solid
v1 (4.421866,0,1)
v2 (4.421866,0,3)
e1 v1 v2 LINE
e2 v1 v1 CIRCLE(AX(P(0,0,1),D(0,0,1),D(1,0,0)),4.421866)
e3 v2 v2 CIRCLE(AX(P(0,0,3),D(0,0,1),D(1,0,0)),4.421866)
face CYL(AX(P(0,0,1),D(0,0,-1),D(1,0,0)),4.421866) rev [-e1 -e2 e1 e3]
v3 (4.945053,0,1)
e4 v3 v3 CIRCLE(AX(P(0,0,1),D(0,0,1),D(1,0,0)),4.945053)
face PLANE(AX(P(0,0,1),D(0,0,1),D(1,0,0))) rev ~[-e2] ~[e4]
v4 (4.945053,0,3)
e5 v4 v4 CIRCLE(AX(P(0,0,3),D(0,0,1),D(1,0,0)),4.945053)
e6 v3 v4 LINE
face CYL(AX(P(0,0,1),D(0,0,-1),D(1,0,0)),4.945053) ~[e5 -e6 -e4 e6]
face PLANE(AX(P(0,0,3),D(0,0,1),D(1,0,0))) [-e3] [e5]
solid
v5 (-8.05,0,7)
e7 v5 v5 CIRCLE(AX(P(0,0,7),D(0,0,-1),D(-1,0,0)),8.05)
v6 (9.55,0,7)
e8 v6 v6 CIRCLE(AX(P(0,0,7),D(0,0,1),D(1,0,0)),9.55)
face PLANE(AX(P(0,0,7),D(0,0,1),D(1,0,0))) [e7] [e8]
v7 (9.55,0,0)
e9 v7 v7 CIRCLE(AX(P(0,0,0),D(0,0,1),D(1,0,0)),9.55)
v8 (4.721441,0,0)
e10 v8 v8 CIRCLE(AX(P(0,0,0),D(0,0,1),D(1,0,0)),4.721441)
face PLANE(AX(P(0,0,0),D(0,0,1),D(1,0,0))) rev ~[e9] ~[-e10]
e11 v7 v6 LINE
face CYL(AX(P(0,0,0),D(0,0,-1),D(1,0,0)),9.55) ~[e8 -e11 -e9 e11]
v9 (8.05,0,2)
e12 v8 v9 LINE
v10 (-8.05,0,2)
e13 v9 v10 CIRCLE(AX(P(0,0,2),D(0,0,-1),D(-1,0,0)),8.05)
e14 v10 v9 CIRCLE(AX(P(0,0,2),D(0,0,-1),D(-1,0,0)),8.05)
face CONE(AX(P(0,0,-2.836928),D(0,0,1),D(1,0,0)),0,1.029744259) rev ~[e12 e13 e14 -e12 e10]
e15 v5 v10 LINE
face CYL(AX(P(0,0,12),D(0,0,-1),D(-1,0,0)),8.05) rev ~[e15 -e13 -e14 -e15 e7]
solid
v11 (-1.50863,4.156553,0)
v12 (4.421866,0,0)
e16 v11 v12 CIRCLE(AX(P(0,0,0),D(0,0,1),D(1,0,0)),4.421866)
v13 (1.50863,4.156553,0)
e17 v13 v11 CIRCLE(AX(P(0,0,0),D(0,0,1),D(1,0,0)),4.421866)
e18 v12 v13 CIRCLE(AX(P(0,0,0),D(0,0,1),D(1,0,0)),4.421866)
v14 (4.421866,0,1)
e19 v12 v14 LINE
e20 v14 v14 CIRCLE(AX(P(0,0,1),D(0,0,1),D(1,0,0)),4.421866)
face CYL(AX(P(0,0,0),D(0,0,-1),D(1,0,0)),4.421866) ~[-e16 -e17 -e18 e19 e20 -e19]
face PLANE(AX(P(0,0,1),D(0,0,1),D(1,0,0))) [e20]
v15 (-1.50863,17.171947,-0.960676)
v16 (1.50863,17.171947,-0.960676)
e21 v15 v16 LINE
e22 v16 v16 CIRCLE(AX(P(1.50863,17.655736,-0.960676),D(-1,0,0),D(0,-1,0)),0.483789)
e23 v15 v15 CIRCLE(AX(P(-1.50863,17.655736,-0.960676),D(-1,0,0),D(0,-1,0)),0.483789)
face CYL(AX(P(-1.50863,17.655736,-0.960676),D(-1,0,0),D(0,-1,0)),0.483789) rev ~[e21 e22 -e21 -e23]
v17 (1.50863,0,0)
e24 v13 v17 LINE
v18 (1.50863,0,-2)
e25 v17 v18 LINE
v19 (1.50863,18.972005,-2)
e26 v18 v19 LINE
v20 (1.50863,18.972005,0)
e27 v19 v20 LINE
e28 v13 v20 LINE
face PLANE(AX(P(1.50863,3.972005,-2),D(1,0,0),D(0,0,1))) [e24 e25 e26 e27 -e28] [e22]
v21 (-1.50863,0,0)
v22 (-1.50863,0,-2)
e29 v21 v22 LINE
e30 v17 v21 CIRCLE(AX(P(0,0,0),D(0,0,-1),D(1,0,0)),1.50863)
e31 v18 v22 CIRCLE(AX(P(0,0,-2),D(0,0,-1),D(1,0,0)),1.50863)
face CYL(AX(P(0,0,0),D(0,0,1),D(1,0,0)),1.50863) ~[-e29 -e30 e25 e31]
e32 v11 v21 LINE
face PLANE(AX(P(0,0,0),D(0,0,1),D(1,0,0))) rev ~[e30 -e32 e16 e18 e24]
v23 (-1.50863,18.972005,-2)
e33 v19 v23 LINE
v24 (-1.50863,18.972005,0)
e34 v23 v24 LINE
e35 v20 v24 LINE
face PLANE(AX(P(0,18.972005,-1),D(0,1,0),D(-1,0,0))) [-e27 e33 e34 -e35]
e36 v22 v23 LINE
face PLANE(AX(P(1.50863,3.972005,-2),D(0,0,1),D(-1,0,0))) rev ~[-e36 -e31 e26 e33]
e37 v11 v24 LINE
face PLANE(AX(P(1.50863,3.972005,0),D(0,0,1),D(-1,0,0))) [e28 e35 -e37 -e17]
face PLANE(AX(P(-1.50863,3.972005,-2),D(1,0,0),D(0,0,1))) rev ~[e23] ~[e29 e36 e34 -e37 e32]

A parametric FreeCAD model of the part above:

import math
import FreeCAD as App
import Part
import Sketcher

doc = App.newDocument("Part")
params = doc.addObject("Spreadsheet::Sheet", "Params")
for row, (alias, value) in enumerate([
    ("sketch1_diameter", "19.1 mm"),
    ("pad1_length", "7 mm"),
    ("sketch2_diameter", "16.1 mm"),
    ("hole_diameter", "16.1 mm"),
    ("hole_depth", "5 mm"),
    ("pad2_length", "1 mm"),
    ("pad3_length", "2 mm"),
    ("pad4_length", "2 mm"),
    ("sketch6_height", "2 mm"),
    ("pad5_length", "15 mm"),
    ("pocket1_length", "25 mm"),
], start=1):
    params.set(f"A{row}", alias)
    params.set(f"B{row}", "=" + value)
    params.setAlias(f"B{row}", alias)

body = doc.addObject("PartDesign::Body", "Body")

sketch1 = body.newObject("Sketcher::SketchObject", "Sketch")
sketch1.AttachmentSupport = (doc.getObject("XY_Plane"), [""])
sketch1.MapMode = "FlatFace"
sketch1.addGeometry(Part.Circle(App.Vector(0, 0, 0), App.Vector(0, 0, 1), 10), False)
sketch1.addConstraint([
    Sketcher.Constraint("Coincident", 0, 3, -1, 1),
    Sketcher.Constraint("Diameter", 0, 19.1),
])
sketch1.setExpression("Constraints[1]", "Params.sketch1_diameter")
pad1 = body.newObject("PartDesign::Pad", "Pad")
pad1.Profile = sketch1
pad1.setExpression("Length", "Params.pad1_length")

sketch2 = body.newObject("Sketcher::SketchObject", "Sketch001")
sketch2.AttachmentSupport = (doc.getObject("XY_Plane"), [""])
sketch2.MapMode = "FlatFace"
sketch2.AttachmentOffset = App.Placement(App.Vector(0, 0, 7), App.Rotation())
sketch2.addGeometry(Part.Circle(App.Vector(0, 0, 0), App.Vector(0, 0, 1), 8), False)
sketch2.addConstraint([
    Sketcher.Constraint("Coincident", 0, 3, -1, 1),
    Sketcher.Constraint("Diameter", 0, 16.1),
])
sketch2.setExpression("Constraints[1]", "Params.sketch2_diameter")
doc.recompute()
hole = body.newObject("PartDesign::Hole", "Hole")
hole.Profile = sketch2
hole.ThreadType = "None"
hole.setExpression("Diameter", "Params.hole_diameter")
hole.DepthType = "Dimension"
hole.setExpression("Depth", "Params.hole_depth")
hole.DrillPoint = "Angled"
hole.DrillPointAngle = 118
body2 = doc.addObject("PartDesign::Body", "Body001")

sketch3 = body2.newObject("Sketcher::SketchObject", "Sketch002")
sketch3.AttachmentSupport = (doc.getObject("XY_Plane001"), [""])
sketch3.MapMode = "FlatFace"
sketch3.addGeometry(Part.Circle(App.Vector(0, 0, 0), App.Vector(0, 0, 1), 4.4), False)
sketch3.addConstraint([
    Sketcher.Constraint("Coincident", 0, 3, -1, 1),
    Sketcher.Constraint("Diameter", 0, 8.843733),
])
pad2 = body2.newObject("PartDesign::Pad", "Pad001")
pad2.Profile = sketch3
pad2.setExpression("Length", "Params.pad2_length")

sketch4 = body2.newObject("Sketcher::SketchObject", "Sketch003")
sketch4.AttachmentSupport = (doc.getObject("XY_Plane001"), [""])
sketch4.MapMode = "FlatFace"
sketch4.addGeometry([
    Part.ArcOfCircle(Part.Circle(App.Vector(0, 0, 0), App.Vector(0, 0, 1), 1.5), math.radians(180), math.radians(360)),
    Part.LineSegment(App.Vector(-1.5, 0, 0), App.Vector(-1.5, 4, 0)),
    Part.LineSegment(App.Vector(-1.5, 4, 0), App.Vector(1.5, 4, 0)),
    Part.LineSegment(App.Vector(1.5, 4, 0), App.Vector(1.5, 0, 0)),
], False)
sketch4.addConstraint([
    Sketcher.Constraint("Tangent", 0, 1, 1, 1),
    Sketcher.Constraint("Coincident", 1, 2, 2, 1),
    Sketcher.Constraint("Coincident", 2, 2, 3, 1),
    Sketcher.Constraint("Tangent", 3, 2, 0, 2),
    Sketcher.Constraint("Vertical", 1),
    Sketcher.Constraint("Horizontal", 2),
    Sketcher.Constraint("Vertical", 3),
    Sketcher.Constraint("Coincident", 0, 3, -1, 1),
    Sketcher.Constraint("Radius", 0, 1.50863),
    Sketcher.Constraint("DistanceY", 1, 1, 1, 2, 3.972005),
])
pad3 = body2.newObject("PartDesign::Pad", "Pad002")
pad3.Profile = sketch4
pad3.setExpression("Length", "Params.pad3_length")
pad3.Reversed = True
body3 = doc.addObject("PartDesign::Body", "Body002")

sketch5 = body3.newObject("Sketcher::SketchObject", "Sketch004")
sketch5.AttachmentSupport = (doc.getObject("XY_Plane002"), [""])
sketch5.MapMode = "FlatFace"
sketch5.AttachmentOffset = App.Placement(App.Vector(0, 0, 1), App.Rotation())
sketch5.addGeometry([
    Part.Circle(App.Vector(0, 0, 0), App.Vector(0, 0, 1), 4.9),
    Part.Circle(App.Vector(0, 0, 0), App.Vector(0, 0, 1), 4.4),
], False)
sketch5.addConstraint([
    Sketcher.Constraint("Coincident", 0, 3, -1, 1),
    Sketcher.Constraint("Coincident", 1, 3, -1, 1),
    Sketcher.Constraint("Diameter", 0, 9.890107),
    Sketcher.Constraint("Diameter", 1, 8.843733),
])
pad4 = body3.newObject("PartDesign::Pad", "Pad003")
pad4.Profile = sketch5
pad4.setExpression("Length", "Params.pad4_length")
body4 = doc.addObject("PartDesign::Body", "Body003")

sketch6 = body4.newObject("Sketcher::SketchObject", "Sketch005")
sketch6.AttachmentSupport = (doc.getObject("XZ_Plane003"), [""])
sketch6.MapMode = "FlatFace"
sketch6.AttachmentOffset = App.Placement(App.Vector(0, 0, -3.972005), App.Rotation())
sketch6.addGeometry([
    Part.LineSegment(App.Vector(1.5, 0, 0), App.Vector(1.5, -2, 0)),
    Part.LineSegment(App.Vector(1.5, -2, 0), App.Vector(-1.5, -2, 0)),
    Part.LineSegment(App.Vector(-1.5, -2, 0), App.Vector(-1.5, 0, 0)),
    Part.LineSegment(App.Vector(-1.5, 0, 0), App.Vector(1.5, 0, 0)),
], False)
sketch6.addConstraint([
    Sketcher.Constraint("Coincident", 0, 2, 1, 1),
    Sketcher.Constraint("Coincident", 1, 2, 2, 1),
    Sketcher.Constraint("Coincident", 2, 2, 3, 1),
    Sketcher.Constraint("Coincident", 3, 2, 0, 1),
    Sketcher.Constraint("Vertical", 0),
    Sketcher.Constraint("Horizontal", 1),
    Sketcher.Constraint("Vertical", 2),
    Sketcher.Constraint("Horizontal", 3),
    Sketcher.Constraint("Symmetric", 2, 2, 3, 2, -1, 1),
    Sketcher.Constraint("DistanceY", 0, 2, 0, 1, 2.0),
    Sketcher.Constraint("DistanceX", 1, 2, 1, 1, 3.01726),
])
sketch6.setExpression("Constraints[9]", "Params.sketch6_height")
pad5 = body4.newObject("PartDesign::Pad", "Pad004")
pad5.Profile = sketch6
pad5.setExpression("Length", "Params.pad5_length")
pad5.Reversed = True
body2.AllowCompound = True
doc.recompute()

boolean = body2.newObject("PartDesign::Boolean", "Boolean")
boolean.Type = "Fuse"
boolean.addObjects([body4])
doc.recompute()

boolean2 = body2.newObject("PartDesign::Boolean", "Boolean001")
boolean2.Type = "Fuse"
boolean2.addObjects([body3])

sketch7 = body2.newObject("Sketcher::SketchObject", "Sketch006")
sketch7.AttachmentSupport = (doc.getObject("YZ_Plane001"), [""])
sketch7.MapMode = "FlatFace"
sketch7.AttachmentOffset = App.Placement(App.Vector(0, 0, -1.50863), App.Rotation())
sketch7.addGeometry(Part.Circle(App.Vector(17.66, -0.96, 0), App.Vector(0, 0, 1), 0.48), False)
sketch7.addConstraint([
    Sketcher.Constraint("Diameter", 0, 0.967578),
    Sketcher.Constraint("DistanceX", -1, 1, 0, 3, 17.655736),
    Sketcher.Constraint("DistanceY", 0, 3, -1, 1, 0.960676),
])
pocket1 = body2.newObject("PartDesign::Pocket", "Pocket")
pocket1.Profile = sketch7
pocket1.setExpression("Length", "Params.pocket1_length")
pocket1.Reversed = True

doc.recompute()
